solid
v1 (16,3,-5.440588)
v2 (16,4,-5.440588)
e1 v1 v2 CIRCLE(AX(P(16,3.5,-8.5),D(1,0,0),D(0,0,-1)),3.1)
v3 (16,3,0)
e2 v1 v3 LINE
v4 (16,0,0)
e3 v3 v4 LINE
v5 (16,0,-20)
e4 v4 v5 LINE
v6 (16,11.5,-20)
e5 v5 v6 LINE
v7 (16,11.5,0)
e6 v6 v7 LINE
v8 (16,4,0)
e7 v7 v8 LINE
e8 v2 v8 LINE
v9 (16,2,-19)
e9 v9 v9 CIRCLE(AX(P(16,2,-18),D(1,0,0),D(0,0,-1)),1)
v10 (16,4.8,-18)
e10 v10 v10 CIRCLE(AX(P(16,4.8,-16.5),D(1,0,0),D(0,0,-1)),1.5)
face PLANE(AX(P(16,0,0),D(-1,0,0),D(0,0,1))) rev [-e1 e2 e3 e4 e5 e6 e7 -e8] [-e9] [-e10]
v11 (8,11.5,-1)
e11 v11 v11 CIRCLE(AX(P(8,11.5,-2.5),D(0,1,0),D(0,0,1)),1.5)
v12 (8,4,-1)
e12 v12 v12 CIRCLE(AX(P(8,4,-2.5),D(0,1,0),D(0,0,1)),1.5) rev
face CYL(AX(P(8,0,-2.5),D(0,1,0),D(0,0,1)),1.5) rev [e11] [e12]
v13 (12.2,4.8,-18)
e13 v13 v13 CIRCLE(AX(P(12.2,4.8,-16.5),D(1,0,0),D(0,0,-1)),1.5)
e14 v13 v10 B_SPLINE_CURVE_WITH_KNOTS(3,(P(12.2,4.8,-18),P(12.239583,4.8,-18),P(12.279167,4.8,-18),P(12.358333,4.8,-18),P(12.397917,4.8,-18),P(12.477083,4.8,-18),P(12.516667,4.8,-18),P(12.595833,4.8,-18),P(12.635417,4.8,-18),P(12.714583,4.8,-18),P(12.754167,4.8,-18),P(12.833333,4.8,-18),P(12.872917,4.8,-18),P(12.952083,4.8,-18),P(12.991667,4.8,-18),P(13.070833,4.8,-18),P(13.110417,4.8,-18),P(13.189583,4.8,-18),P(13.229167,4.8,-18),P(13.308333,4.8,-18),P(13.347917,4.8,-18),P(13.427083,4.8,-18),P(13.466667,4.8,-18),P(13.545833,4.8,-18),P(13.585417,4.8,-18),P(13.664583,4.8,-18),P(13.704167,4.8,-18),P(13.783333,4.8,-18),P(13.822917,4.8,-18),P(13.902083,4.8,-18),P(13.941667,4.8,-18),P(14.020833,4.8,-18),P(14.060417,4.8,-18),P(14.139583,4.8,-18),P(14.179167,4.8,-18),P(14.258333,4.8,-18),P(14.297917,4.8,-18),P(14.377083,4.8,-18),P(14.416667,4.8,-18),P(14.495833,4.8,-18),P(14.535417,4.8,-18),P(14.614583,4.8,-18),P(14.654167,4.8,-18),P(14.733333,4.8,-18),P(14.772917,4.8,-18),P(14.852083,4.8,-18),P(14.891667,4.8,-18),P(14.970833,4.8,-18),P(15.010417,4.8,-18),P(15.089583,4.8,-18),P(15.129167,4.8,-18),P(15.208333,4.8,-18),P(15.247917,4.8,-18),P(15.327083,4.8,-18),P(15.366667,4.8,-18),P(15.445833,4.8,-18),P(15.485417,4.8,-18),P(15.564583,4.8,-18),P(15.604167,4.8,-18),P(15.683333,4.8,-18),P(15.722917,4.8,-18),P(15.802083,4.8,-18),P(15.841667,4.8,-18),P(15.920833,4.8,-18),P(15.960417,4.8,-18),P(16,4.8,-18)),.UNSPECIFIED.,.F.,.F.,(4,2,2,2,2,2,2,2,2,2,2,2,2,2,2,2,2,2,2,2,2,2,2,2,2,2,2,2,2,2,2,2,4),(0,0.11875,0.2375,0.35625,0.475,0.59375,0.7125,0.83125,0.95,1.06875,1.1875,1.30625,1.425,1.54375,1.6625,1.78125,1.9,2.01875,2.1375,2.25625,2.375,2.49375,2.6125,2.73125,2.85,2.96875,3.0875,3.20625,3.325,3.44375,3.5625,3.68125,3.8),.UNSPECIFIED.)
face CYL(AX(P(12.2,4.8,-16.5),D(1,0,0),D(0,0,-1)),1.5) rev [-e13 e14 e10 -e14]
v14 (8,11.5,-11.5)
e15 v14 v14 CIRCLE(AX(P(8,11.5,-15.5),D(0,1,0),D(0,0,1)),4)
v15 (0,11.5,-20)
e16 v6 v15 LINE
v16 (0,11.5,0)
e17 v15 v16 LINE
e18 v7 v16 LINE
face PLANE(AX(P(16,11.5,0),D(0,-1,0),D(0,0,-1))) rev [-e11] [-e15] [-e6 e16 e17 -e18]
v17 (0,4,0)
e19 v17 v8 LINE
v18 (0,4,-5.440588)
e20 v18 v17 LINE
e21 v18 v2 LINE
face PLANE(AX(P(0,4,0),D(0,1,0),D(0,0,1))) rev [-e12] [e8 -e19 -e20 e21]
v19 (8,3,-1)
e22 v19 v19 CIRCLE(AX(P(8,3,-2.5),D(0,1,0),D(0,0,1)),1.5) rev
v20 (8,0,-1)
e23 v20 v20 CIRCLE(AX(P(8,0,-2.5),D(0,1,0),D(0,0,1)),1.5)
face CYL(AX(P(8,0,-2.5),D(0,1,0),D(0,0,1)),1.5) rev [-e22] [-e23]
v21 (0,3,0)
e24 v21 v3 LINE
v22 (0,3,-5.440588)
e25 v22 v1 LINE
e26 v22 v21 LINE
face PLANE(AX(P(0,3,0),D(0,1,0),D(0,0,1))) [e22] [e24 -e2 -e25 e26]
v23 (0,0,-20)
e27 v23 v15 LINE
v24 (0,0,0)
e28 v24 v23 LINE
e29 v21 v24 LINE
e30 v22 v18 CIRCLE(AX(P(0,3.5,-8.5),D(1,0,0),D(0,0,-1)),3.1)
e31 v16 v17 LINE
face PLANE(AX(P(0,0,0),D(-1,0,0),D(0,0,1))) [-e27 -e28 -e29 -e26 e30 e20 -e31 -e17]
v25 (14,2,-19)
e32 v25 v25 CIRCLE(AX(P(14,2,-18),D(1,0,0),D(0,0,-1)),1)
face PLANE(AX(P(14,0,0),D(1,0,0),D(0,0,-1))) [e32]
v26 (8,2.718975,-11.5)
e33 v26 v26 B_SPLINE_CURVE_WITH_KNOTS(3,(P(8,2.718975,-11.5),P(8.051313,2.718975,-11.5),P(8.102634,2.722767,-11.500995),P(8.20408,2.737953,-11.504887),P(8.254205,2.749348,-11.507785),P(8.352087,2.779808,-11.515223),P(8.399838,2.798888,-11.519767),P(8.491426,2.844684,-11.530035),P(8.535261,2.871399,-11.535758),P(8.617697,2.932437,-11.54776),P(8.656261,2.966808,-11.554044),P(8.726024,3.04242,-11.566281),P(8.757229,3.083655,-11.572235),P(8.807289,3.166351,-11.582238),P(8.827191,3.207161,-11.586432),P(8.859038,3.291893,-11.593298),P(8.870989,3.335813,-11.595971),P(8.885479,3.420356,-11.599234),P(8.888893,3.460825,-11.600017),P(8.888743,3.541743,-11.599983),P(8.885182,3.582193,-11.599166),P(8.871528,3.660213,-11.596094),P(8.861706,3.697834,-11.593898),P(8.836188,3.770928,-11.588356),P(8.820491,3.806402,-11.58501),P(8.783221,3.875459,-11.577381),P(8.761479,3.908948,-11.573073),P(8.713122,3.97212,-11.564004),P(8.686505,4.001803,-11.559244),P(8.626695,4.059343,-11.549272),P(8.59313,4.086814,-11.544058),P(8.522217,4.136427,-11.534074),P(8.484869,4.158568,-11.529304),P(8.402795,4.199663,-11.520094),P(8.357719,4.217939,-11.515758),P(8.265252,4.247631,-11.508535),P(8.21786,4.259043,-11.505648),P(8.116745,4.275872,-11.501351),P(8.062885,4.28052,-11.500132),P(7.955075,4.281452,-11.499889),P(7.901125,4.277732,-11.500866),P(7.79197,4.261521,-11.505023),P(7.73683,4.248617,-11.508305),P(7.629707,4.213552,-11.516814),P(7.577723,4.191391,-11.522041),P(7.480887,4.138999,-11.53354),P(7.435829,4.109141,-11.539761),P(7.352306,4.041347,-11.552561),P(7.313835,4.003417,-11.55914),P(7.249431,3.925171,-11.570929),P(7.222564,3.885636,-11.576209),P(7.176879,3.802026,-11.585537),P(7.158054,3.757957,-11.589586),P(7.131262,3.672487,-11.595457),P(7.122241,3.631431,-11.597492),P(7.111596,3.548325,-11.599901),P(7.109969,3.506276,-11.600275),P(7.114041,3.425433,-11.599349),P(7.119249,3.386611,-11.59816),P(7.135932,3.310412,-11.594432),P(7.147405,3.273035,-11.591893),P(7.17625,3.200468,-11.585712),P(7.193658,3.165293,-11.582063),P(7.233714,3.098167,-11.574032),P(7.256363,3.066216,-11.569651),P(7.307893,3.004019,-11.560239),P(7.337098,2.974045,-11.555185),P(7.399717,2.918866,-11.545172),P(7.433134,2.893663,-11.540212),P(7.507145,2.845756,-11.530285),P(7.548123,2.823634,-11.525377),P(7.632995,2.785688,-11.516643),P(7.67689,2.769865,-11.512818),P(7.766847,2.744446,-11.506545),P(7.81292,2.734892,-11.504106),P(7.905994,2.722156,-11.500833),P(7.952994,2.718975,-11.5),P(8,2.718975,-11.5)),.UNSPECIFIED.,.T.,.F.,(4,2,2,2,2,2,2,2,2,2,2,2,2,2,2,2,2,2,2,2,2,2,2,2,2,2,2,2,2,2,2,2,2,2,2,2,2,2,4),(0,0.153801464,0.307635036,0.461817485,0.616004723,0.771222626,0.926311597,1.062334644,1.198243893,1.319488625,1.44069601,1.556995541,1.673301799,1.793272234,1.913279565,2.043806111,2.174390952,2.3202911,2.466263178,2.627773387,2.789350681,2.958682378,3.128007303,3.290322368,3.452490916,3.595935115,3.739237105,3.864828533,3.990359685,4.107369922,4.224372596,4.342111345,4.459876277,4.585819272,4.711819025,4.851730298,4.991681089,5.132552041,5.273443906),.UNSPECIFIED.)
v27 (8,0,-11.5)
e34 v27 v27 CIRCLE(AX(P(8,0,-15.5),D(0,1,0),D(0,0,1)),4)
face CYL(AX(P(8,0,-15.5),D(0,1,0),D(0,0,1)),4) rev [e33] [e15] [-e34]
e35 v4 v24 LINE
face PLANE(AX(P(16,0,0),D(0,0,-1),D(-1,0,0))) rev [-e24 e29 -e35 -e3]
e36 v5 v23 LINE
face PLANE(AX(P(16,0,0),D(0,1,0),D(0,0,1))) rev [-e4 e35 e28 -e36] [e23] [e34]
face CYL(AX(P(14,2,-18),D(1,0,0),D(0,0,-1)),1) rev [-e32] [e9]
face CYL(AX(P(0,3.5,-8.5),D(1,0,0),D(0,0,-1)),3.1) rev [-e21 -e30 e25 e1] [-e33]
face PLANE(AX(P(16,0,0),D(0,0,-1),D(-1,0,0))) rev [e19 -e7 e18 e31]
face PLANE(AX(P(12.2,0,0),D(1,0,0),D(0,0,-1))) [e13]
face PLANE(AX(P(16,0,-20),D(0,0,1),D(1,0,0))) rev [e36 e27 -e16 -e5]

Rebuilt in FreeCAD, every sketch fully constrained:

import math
import FreeCAD as App
import Part
import Sketcher
from FreeCAD import Vector
Q = App.Units.Quantity

doc = App.newDocument("Part")
body = doc.addObject("PartDesign::Body", "Body")

sketch1 = body.newObject("Sketcher::SketchObject", "Sketch")
sketch1.AttachmentSupport = (doc.getObject("YZ_Plane"), [""])
sketch1.MapMode = "FlatFace"
sketch1.addGeometry([
    Part.LineSegment(Vector(12, 0, 0), Vector(0, 0, 0)),
    Part.LineSegment(Vector(0, 0, 0), Vector(0, -20, 0)),
    Part.LineSegment(Vector(0, -20, 0), Vector(12, -20, 0)),
    Part.LineSegment(Vector(12, -20, 0), Vector(12, 0, 0)),
], False)
sketch1.addConstraint([
    Sketcher.Constraint("Coincident", 0, 2, 1, 1),
    Sketcher.Constraint("Coincident", 1, 2, 2, 1),
    Sketcher.Constraint("Coincident", 2, 2, 3, 1),
    Sketcher.Constraint("Coincident", 3, 2, 0, 1),
    Sketcher.Constraint("Horizontal", 0),
    Sketcher.Constraint("Vertical", 1),
    Sketcher.Constraint("Horizontal", 2),
    Sketcher.Constraint("Vertical", 3),
    Sketcher.Constraint("Coincident", 0, 2, -1, 1),
    Sketcher.Constraint("DistanceY", 1, 2, 1, 1, Q("20 mm")),
    Sketcher.Constraint("DistanceX", 0, 2, 0, 1, Q("11.5 mm")),
])
pad1 = body.newObject("PartDesign::Pad", "Pad")
pad1.Profile = sketch1
pad1.Length = 16

sketch2 = body.newObject("Sketcher::SketchObject", "Sketch001")
sketch2.AttachmentSupport = (doc.getObject("XZ_Plane"), [""])
sketch2.MapMode = "FlatFace"
sketch2.AttachmentOffset = App.Placement(Vector(0, 0, -11.5), App.Rotation())
sketch2.addGeometry([
    Part.Circle(Vector(8, -2.5, 0), Vector(0, 0, 1), 1.5),
    Part.Circle(Vector(8, -15.5, 0), Vector(0, 0, 1), 4),
], False)
sketch2.addConstraint([
    Sketcher.Constraint("Vertical", 0, 3, 1, 3),
    Sketcher.Constraint("Diameter", 0, Q("3 mm")),
    Sketcher.Constraint("Diameter", 1, Q("8 mm")),
    Sketcher.Constraint("DistanceX", -1, 1, 0, 3, Q("8 mm")),
    Sketcher.Constraint("DistanceY", 1, 3, 0, 3, Q("13 mm")),
    Sketcher.Constraint("DistanceY", 0, 3, -1, 1, Q("2.5 mm")),
])
pocket1 = body.newObject("PartDesign::Pocket", "Pocket")
pocket1.Profile = sketch2
pocket1.Type = "ThroughAll"
pocket1.Reversed = True

sketch3 = body.newObject("Sketcher::SketchObject", "Sketch002")
sketch3.AttachmentSupport = (doc.getObject("YZ_Plane"), [""])
sketch3.MapMode = "FlatFace"
sketch3.AttachmentOffset = App.Placement(Vector(0, 0, 16), App.Rotation())
sketch3.addGeometry(Part.Circle(Vector(2, -18, 0), Vector(0, 0, 1), 1), False)
sketch3.addConstraint([
    Sketcher.Constraint("Diameter", 0, Q("2 mm")),
    Sketcher.Constraint("DistanceX", -1, 1, 0, 3, Q("2 mm")),
    Sketcher.Constraint("DistanceY", 0, 3, -1, 1, Q("18 mm")),
])
pocket2 = body.newObject("PartDesign::Pocket", "Pocket001")
pocket2.Profile = sketch3
pocket2.Length = 2

sketch4 = body.newObject("Sketcher::SketchObject", "Sketch003")
sketch4.AttachmentSupport = (doc.getObject("YZ_Plane"), [""])
sketch4.MapMode = "FlatFace"
sketch4.AttachmentOffset = App.Placement(Vector(0, 0, 16), App.Rotation())
sketch4.addGeometry(Part.Circle(Vector(4.8, -16.5, 0), Vector(0, 0, 1), 1.5), False)
sketch4.addConstraint([
    Sketcher.Constraint("Diameter", 0, Q("3 mm")),
    Sketcher.Constraint("DistanceX", -1, 1, 0, 3, Q("4.8 mm")),
    Sketcher.Constraint("DistanceY", 0, 3, -1, 1, Q("16.5 mm")),
])
pocket3 = body.newObject("PartDesign::Pocket", "Pocket002")
pocket3.Profile = sketch4
pocket3.Length = 3.8

sketch5 = body.newObject("Sketcher::SketchObject", "Sketch004")
sketch5.AttachmentSupport = (doc.getObject("YZ_Plane"), [""])
sketch5.MapMode = "FlatFace"
sketch5.AttachmentOffset = App.Placement(Vector(0, 0, 16), App.Rotation())
sketch5.addGeometry([
    Part.LineSegment(Vector(3, 0, 0), Vector(3, -5.4, 0)),
    Part.ArcOfCircle(Part.Circle(Vector(3.5, -8.5, 0), Vector(0, 0, 1), 3.1), math.radians(99), math.radians(441)),
    Part.LineSegment(Vector(4, -5.4, 0), Vector(4, 0, 0)),
    Part.LineSegment(Vector(4, 0, 0), Vector(3, 0, 0)),
], False)
sketch5.addConstraint([
    Sketcher.Constraint("Coincident", 0, 2, 1, 1),
    Sketcher.Constraint("Coincident", 1, 2, 2, 1),
    Sketcher.Constraint("Coincident", 2, 2, 3, 1),
    Sketcher.Constraint("Coincident", 3, 2, 0, 1),
    Sketcher.Constraint("Vertical", 0),
    Sketcher.Constraint("Vertical", 2),
    Sketcher.Constraint("Horizontal", 3),
    Sketcher.Constraint("PointOnObject", 2, 2, -1),
    Sketcher.Constraint("Horizontal", 0, 2, 1, 2),
    Sketcher.Constraint("Radius", 1, Q("3.1 mm")),
    Sketcher.Constraint("DistanceX", 3, 2, 3, 1, Q("1 mm")),
    Sketcher.Constraint("DistanceX", -1, 1, 0, 2, Q("3 mm")),
    Sketcher.Constraint("DistanceY", 1, 3, -1, 1, Q("8.5 mm")),
])
pocket4 = body.newObject("PartDesign::Pocket", "Pocket003")
pocket4.Profile = sketch5
pocket4.Type = "ThroughAll"

doc.recompute()
